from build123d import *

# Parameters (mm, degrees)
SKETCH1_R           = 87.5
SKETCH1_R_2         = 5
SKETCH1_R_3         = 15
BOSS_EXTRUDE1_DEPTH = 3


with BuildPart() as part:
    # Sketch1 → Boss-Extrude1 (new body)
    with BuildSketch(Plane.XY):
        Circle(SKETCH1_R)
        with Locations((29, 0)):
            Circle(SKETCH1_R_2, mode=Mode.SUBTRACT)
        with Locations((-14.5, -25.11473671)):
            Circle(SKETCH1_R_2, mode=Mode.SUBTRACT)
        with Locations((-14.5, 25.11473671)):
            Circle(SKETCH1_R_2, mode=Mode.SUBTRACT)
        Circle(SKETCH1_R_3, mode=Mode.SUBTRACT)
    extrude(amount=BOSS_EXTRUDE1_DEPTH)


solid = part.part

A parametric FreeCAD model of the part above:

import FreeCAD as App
import Part
import Sketcher
Q = App.Units.Quantity

doc = App.newDocument("Part")
body = doc.addObject("PartDesign::Body", "Body")

sketch1 = body.newObject("Sketcher::SketchObject", "Sketch")
sketch1.AttachmentSupport = (doc.getObject("XY_Plane"), [""])
sketch1.MapMode = "FlatFace"
sketch1.addGeometry(Part.Circle(App.Vector(0, 0, 0), App.Vector(0, 0, 1), 87.5), False)
sketch1.addGeometry(Part.Circle(App.Vector(-14.5, -25.114737, 0), App.Vector(0, 0, 1), 5), False)
sketch1.addGeometry(Part.Circle(App.Vector(0, 0, 0), App.Vector(0, 0, 1), 15), False)
sketch1.addGeometry(Part.Circle(App.Vector(-14.5, 25.114737, 0), App.Vector(0, 0, 1), 5), False)
sketch1.addGeometry(Part.Circle(App.Vector(29, 0, 0), App.Vector(0, 0, 1), 5), False)
sketch1.addConstraint(Sketcher.Constraint("Coincident", 0, 3, -1, 1))
sketch1.addConstraint(Sketcher.Constraint("Coincident", 2, 3, -1, 1))
sketch1.addConstraint(Sketcher.Constraint("Equal", 1, 3))
sketch1.addConstraint(Sketcher.Constraint("Equal", 3, 4))
sketch1.addConstraint(Sketcher.Constraint("Symmetric", 1, 3, 3, 3, -1))
sketch1.addConstraint(Sketcher.Constraint("PointOnObject", 4, 3, -1))
sketch1.addConstraint(Sketcher.Constraint("Diameter", 0, Q("175 mm")))
sketch1.addConstraint(Sketcher.Constraint("Diameter", 1, Q("10 mm")))
sketch1.addConstraint(Sketcher.Constraint("Diameter", 2, Q("30 mm")))
sketch1.addConstraint(Sketcher.Constraint("DistanceX", -1, 1, 4, 3, Q("29 mm")))
sketch1.addConstraint(Sketcher.Constraint("DistanceX", 1, 3, -1, 1, Q("14.5 mm")))
sketch1.addConstraint(Sketcher.Constraint("DistanceY", 1, 3, -1, 1, Q("25.114737 mm")))
pad1 = body.newObject("PartDesign::Pad", "Pad")
pad1.Profile = sketch1
pad1.Length = 3

doc.recompute()
